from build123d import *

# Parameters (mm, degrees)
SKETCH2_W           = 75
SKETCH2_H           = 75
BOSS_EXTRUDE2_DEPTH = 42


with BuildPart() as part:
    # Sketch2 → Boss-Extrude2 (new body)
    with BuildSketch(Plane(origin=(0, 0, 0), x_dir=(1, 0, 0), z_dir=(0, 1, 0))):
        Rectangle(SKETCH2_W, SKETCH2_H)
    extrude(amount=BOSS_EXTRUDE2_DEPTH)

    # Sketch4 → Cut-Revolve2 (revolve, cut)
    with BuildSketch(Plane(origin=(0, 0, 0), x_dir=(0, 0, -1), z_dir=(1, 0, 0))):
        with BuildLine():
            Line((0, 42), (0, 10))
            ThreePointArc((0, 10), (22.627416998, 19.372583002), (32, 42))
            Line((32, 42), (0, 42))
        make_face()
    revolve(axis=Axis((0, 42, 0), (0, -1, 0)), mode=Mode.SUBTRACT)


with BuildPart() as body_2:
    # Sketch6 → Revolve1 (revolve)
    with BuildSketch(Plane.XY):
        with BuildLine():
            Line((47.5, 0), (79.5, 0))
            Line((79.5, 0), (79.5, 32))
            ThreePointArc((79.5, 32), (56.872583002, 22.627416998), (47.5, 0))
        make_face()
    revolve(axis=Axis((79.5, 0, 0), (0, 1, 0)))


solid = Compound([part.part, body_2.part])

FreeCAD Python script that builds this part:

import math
import FreeCAD as App
import Part
import Sketcher

V = App.Vector


def add_polygon(sketch, points):
    """Adds a closed chain of lines whose ends are joined by coincident constraints."""
    first, n = sketch.GeometryCount, len(points)
    for a, b in zip(points, points[1:] + points[:1]):
        sketch.addGeometry(Part.LineSegment(App.Vector(*a, 0), App.Vector(*b, 0)), False)
    for i in range(n):
        sketch.addConstraint(Sketcher.Constraint("Coincident", first + i, 2, first + (i + 1) % n, 1))

doc = App.newDocument("Part")
body = doc.addObject("PartDesign::Body", "Body")

sketch1 = body.newObject("Sketcher::SketchObject", "Sketch")
sketch1.AttachmentSupport = (doc.getObject("XZ_Plane"), [""])
sketch1.MapMode = "FlatFace"
add_polygon(sketch1, [(-38, -38), (-38, 38), (38, 38), (38, -38)])
sketch1.addConstraint([
    Sketcher.Constraint("Vertical", 0),
    Sketcher.Constraint("Horizontal", 1),
    Sketcher.Constraint("Vertical", 2),
    Sketcher.Constraint("Horizontal", 3),
    Sketcher.Constraint("Symmetric", 0, 2, 2, 2, -1, 1),
    Sketcher.Constraint("Equal", 3, 0),
    Sketcher.Constraint("DistanceX", 1, 1, 1, 2, 75.0),
])
pad1 = body.newObject("PartDesign::Pad", "Pad")
pad1.Profile = sketch1
pad1.Length = 42
pad1.Reversed = True

sketch2 = body.newObject("Sketcher::SketchObject", "Sketch001")
sketch2.AttachmentSupport = (doc.getObject("YZ_Plane"), [""])
sketch2.MapMode = "FlatFace"
sketch2.addGeometry([
    Part.LineSegment(V(42, 0, 0), V(10, 0, 0)),
    Part.ArcOfCircle(Part.Circle(V(42, 0, 0), V(0, 0, 1), 32), math.radians(180), math.radians(270)),
    Part.LineSegment(V(42, -32, 0), V(42, 0, 0)),
], False)
sketch2.addConstraint([
    Sketcher.Constraint("Coincident", 0, 2, 1, 1),
    Sketcher.Constraint("Coincident", 1, 2, 2, 1),
    Sketcher.Constraint("Coincident", 2, 2, 0, 1),
    Sketcher.Constraint("Horizontal", 0),
    Sketcher.Constraint("Vertical", 2),
    Sketcher.Constraint("Coincident", 2, 2, 1, 3),
    Sketcher.Constraint("PointOnObject", 1, 3, -1),
    Sketcher.Constraint("Radius", 1, 32.0),
    Sketcher.Constraint("DistanceX", -1, 1, 1, 3, 42.0),
])
groove = body.newObject("PartDesign::Groove", "Groove")
groove.Profile = sketch2
groove.ReferenceAxis = (sketch2, ["H_Axis"])
groove.Angle = 360
body2 = doc.addObject("PartDesign::Body", "Body001")

sketch3 = body2.newObject("Sketcher::SketchObject", "Sketch002")
sketch3.AttachmentSupport = (doc.getObject("XY_Plane001"), [""])
sketch3.MapMode = "FlatFace"
sketch3.addGeometry([
    Part.LineSegment(V(48, 0, 0), V(80, 0, 0)),
    Part.LineSegment(V(80, 0, 0), V(80, 32, 0)),
    Part.ArcOfCircle(Part.Circle(V(80, 0, 0), V(0, 0, 1), 32), math.radians(90), math.radians(180)),
], False)
sketch3.addGeometry(Part.LineSegment(V(80, 0, 0), V(80, 32, 0)), True)
sketch3.addConstraint([
    Sketcher.Constraint("Coincident", 0, 2, 1, 1),
    Sketcher.Constraint("Coincident", 1, 2, 2, 1),
    Sketcher.Constraint("Coincident", 2, 2, 0, 1),
    Sketcher.Constraint("Horizontal", 0),
    Sketcher.Constraint("Vertical", 1),
    Sketcher.Constraint("Vertical", 3),
    Sketcher.Constraint("Coincident", 0, 2, 2, 3),
    Sketcher.Constraint("Coincident", 3, 1, 2, 3),
    Sketcher.Constraint("PointOnObject", 2, 3, -1),
    Sketcher.Constraint("Equal", 1, 3),
    Sketcher.Constraint("Radius", 2, 32.0),
    Sketcher.Constraint("DistanceX", -1, 1, 2, 3, 79.5),
])
revolution = body2.newObject("PartDesign::Revolution", "Revolution")
revolution.Profile = sketch3
revolution.ReferenceAxis = (sketch3, ["Axis0"])
revolution.Angle = 360

doc.recompute()
